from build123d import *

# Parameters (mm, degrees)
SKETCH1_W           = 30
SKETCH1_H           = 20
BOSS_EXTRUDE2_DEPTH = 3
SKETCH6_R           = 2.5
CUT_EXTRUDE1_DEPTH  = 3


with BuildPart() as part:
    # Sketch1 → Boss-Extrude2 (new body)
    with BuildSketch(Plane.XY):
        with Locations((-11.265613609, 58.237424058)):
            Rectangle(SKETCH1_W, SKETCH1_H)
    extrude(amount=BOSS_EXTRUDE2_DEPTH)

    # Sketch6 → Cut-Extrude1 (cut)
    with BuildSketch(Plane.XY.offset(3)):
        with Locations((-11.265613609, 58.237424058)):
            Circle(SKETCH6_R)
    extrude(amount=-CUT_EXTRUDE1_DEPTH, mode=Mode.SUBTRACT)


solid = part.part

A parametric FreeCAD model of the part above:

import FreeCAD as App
import Part
import Sketcher
from FreeCAD import Vector

doc = App.newDocument("Part")
body = doc.addObject("PartDesign::Body", "Body")

sketch1 = doc.addObject("Sketcher::SketchObject", "Sketch")
body.addObject(sketch1)
sketch1.AttachmentSupport = (doc.XY_Plane, [""])
sketch1.MapMode = "FlatFace"
sketch1.addGeometry(Part.LineSegment(Vector(-26, 68, 0), Vector(-26, 48, 0)), False)
sketch1.addGeometry(Part.LineSegment(Vector(-26, 48, 0), Vector(4, 48, 0)), False)
sketch1.addGeometry(Part.LineSegment(Vector(4, 48, 0), Vector(4, 68, 0)), False)
sketch1.addGeometry(Part.LineSegment(Vector(4, 68, 0), Vector(-26, 68, 0)), False)
sketch1.addConstraint(Sketcher.Constraint("Coincident", 0, 2, 1, 1))
sketch1.addConstraint(Sketcher.Constraint("Coincident", 1, 2, 2, 1))
sketch1.addConstraint(Sketcher.Constraint("Coincident", 2, 2, 3, 1))
sketch1.addConstraint(Sketcher.Constraint("Coincident", 3, 2, 0, 1))
sketch1.addConstraint(Sketcher.Constraint("Vertical", 0))
sketch1.addConstraint(Sketcher.Constraint("Horizontal", 1))
sketch1.addConstraint(Sketcher.Constraint("Vertical", 2))
sketch1.addConstraint(Sketcher.Constraint("Horizontal", 3))
sketch1.addConstraint(Sketcher.Constraint("DistanceX", 1, 1, 1, 2, 30.0))
sketch1.addConstraint(Sketcher.Constraint("DistanceY", 0, 2, 0, 1, 20.0))
sketch1.addConstraint(Sketcher.Constraint("DistanceX", 0, 2, -1, 1, 26.265614))
sketch1.addConstraint(Sketcher.Constraint("DistanceY", -1, 1, 0, 2, 48.237424))
pad1 = doc.addObject("PartDesign::Pad", "Pad")
body.addObject(pad1)
pad1.Profile = sketch1
pad1.Length = 3

sketch2 = doc.addObject("Sketcher::SketchObject", "Sketch001")
body.addObject(sketch2)
sketch2.AttachmentSupport = (doc.XY_Plane, [""])
sketch2.MapMode = "FlatFace"
sketch2.AttachmentOffset = App.Placement(Vector(0, 0, 3), App.Rotation())
sketch2.addGeometry(Part.Circle(Vector(-11.3, 58.2, 0), Vector(0, 0, 1), 2.5), False)
sketch2.addConstraint(Sketcher.Constraint("Diameter", 0, 5.0))
sketch2.addConstraint(Sketcher.Constraint("DistanceX", 0, 3, -1, 1, 11.265614))
sketch2.addConstraint(Sketcher.Constraint("DistanceY", -1, 1, 0, 3, 58.237424))
pocket1 = doc.addObject("PartDesign::Pocket", "Pocket")
body.addObject(pocket1)
pocket1.Profile = sketch2
pocket1.Length = 3

doc.recompute()
